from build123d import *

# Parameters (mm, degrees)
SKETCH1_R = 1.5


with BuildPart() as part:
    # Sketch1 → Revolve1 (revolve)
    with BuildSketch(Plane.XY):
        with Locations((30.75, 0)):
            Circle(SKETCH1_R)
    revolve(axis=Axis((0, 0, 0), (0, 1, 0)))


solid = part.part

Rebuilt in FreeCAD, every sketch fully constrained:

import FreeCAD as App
import Part
import Sketcher
from FreeCAD import Vector
Q = App.Units.Quantity

doc = App.newDocument("Part")
body = doc.addObject("PartDesign::Body", "Body")

# Sketch on XY plane
sketch1 = body.newObject("Sketcher::SketchObject", "Sketch")
sketch1.AttachmentSupport = (doc.getObject("XY_Plane"), [""])
sketch1.MapMode = "FlatFace"
sketch1.addGeometry(Part.Circle(Vector(30.75, 0, 0), Vector(0, 0, 1), 1.5), False)
sketch1.addConstraint([
    Sketcher.Constraint("PointOnObject", 0, 3, -1),
    Sketcher.Constraint("Diameter", 0, Q("3 mm")),
    Sketcher.Constraint("DistanceX", -1, 1, 0, 3, Q("30.75 mm")),
])
revolution = body.newObject("PartDesign::Revolution", "Revolution")
revolution.Profile = sketch1
revolution.ReferenceAxis = (sketch1, ["V_Axis"])
revolution.Angle = 360

doc.recompute()
